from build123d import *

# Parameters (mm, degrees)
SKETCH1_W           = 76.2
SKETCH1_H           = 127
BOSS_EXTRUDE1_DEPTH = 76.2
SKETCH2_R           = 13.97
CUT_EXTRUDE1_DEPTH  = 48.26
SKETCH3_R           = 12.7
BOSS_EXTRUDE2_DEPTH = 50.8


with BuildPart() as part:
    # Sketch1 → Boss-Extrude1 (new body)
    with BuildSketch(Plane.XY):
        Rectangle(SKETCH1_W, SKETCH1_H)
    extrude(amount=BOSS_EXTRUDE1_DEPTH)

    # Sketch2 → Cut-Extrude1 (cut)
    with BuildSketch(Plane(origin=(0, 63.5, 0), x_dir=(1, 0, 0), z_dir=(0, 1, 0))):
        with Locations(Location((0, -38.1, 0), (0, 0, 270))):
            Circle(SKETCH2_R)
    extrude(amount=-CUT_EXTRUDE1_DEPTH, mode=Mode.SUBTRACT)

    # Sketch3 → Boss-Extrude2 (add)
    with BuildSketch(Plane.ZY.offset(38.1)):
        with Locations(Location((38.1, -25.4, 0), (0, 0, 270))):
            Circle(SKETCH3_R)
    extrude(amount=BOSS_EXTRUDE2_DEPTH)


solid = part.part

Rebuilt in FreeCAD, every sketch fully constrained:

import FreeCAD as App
import Part
import Sketcher
from FreeCAD import Vector
Q = App.Units.Quantity

doc = App.newDocument("Part")
body = doc.addObject("PartDesign::Body", "Body")

# Sketch on XY plane
sketch1 = body.newObject("Sketcher::SketchObject", "Sketch")
sketch1.AttachmentSupport = (doc.getObject("XY_Plane"), [""])
sketch1.MapMode = "FlatFace"
sketch1.addGeometry(Part.LineSegment(Vector(-38.1, 63.5, 0), Vector(-38.1, -63.5, 0)), False)
sketch1.addGeometry(Part.LineSegment(Vector(-38.1, -63.5, 0), Vector(38.1, -63.5, 0)), False)
sketch1.addGeometry(Part.LineSegment(Vector(38.1, -63.5, 0), Vector(38.1, 63.5, 0)), False)
sketch1.addGeometry(Part.LineSegment(Vector(38.1, 63.5, 0), Vector(-38.1, 63.5, 0)), False)
sketch1.addConstraint(Sketcher.Constraint("Coincident", 0, 2, 1, 1))
sketch1.addConstraint(Sketcher.Constraint("Coincident", 1, 2, 2, 1))
sketch1.addConstraint(Sketcher.Constraint("Coincident", 2, 2, 3, 1))
sketch1.addConstraint(Sketcher.Constraint("Coincident", 3, 2, 0, 1))
sketch1.addConstraint(Sketcher.Constraint("Vertical", 0))
sketch1.addConstraint(Sketcher.Constraint("Horizontal", 1))
sketch1.addConstraint(Sketcher.Constraint("Vertical", 2))
sketch1.addConstraint(Sketcher.Constraint("Horizontal", 3))
sketch1.addConstraint(Sketcher.Constraint("Symmetric", 0, 2, 2, 2, -1, 1))
sketch1.addConstraint(Sketcher.Constraint("DistanceX", 1, 1, 1, 2, Q("3 in")))
sketch1.addConstraint(Sketcher.Constraint("DistanceY", 0, 2, 0, 1, Q("5 in")))
pad1 = body.newObject("PartDesign::Pad", "Pad")
pad1.Profile = sketch1
pad1.Length = Q("3 in")

# Sketch on XZ plane
sketch2 = body.newObject("Sketcher::SketchObject", "Sketch001")
sketch2.AttachmentSupport = (doc.getObject("XZ_Plane"), [""])
sketch2.MapMode = "FlatFace"
sketch2.AttachmentOffset = App.Placement(Vector(0, 0, -2.5 * 25.4), App.Rotation())
sketch2.addGeometry(Part.Circle(Vector(0, 38.1, 0), Vector(0, 0, 1), 13.97), False)
sketch2.addConstraint(Sketcher.Constraint("PointOnObject", 0, 3, -2))
sketch2.addConstraint(Sketcher.Constraint("Diameter", 0, Q("1.1 in")))
sketch2.addConstraint(Sketcher.Constraint("DistanceY", -1, 1, 0, 3, Q("1.5 in")))
pocket1 = body.newObject("PartDesign::Pocket", "Pocket")
pocket1.Profile = sketch2
pocket1.Length = Q("1.9 in")
pocket1.Reversed = True

# Sketch on YZ plane
sketch3 = body.newObject("Sketcher::SketchObject", "Sketch002")
sketch3.AttachmentSupport = (doc.getObject("YZ_Plane"), [""])
sketch3.MapMode = "FlatFace"
sketch3.AttachmentOffset = App.Placement(Vector(0, 0, -1.5 * 25.4), App.Rotation())
sketch3.addGeometry(Part.Circle(Vector(-25.4, 38.1, 0), Vector(0, 0, 1), 12.7), False)
sketch3.addConstraint(Sketcher.Constraint("Diameter", 0, Q("1 in")))
sketch3.addConstraint(Sketcher.Constraint("DistanceX", 0, 3, -1, 1, Q("1 in")))
sketch3.addConstraint(Sketcher.Constraint("DistanceY", -1, 1, 0, 3, Q("1.5 in")))
pad2 = body.newObject("PartDesign::Pad", "Pad001")
pad2.Profile = sketch3
pad2.Length = Q("2 in")
pad2.Reversed = True

doc.recompute()
